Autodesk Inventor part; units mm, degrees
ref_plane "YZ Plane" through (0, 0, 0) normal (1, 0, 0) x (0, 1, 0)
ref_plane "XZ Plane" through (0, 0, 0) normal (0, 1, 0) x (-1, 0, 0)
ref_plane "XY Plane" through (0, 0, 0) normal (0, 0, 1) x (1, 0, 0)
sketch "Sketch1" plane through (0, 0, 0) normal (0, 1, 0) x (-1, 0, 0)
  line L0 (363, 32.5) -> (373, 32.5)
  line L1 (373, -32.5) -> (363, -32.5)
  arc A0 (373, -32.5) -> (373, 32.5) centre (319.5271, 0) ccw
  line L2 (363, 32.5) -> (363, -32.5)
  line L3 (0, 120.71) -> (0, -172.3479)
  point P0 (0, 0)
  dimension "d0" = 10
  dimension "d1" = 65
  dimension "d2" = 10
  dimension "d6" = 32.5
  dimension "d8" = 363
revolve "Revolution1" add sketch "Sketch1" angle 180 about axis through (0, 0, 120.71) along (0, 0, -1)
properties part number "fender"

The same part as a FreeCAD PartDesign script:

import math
import FreeCAD as App
import Part
import Sketcher

doc = App.newDocument("Part")
body = doc.addObject("PartDesign::Body", "Body")

sketch1 = doc.addObject("Sketcher::SketchObject", "Sketch")
body.addObject(sketch1)
sketch1.AttachmentSupport = (doc.XZ_Plane, [""])
sketch1.MapMode = "FlatFace"
sketch1.addGeometry(Part.LineSegment(App.Vector(-373, 32.5, 0), App.Vector(-363, 32.5, 0)), False)
sketch1.addGeometry(Part.LineSegment(App.Vector(-363, 32.5, 0), App.Vector(-363, -32.5, 0)), False)
sketch1.addGeometry(Part.LineSegment(App.Vector(-363, -32.5, 0), App.Vector(-373, -32.5, 0)), False)
sketch1.addGeometry(Part.ArcOfCircle(Part.Circle(App.Vector(-319.5271, 0, 0), App.Vector(0, 0, 1), 62.574764), math.radians(148.709414), math.radians(211.290586)), False)
sketch1.addConstraint(Sketcher.Constraint("Coincident", 0, 2, 1, 1))
sketch1.addConstraint(Sketcher.Constraint("Coincident", 1, 2, 2, 1))
sketch1.addConstraint(Sketcher.Constraint("Coincident", 2, 2, 3, 2))
sketch1.addConstraint(Sketcher.Constraint("Coincident", 3, 1, 0, 1))
sketch1.addConstraint(Sketcher.Constraint("Horizontal", 0))
sketch1.addConstraint(Sketcher.Constraint("Vertical", 1))
sketch1.addConstraint(Sketcher.Constraint("Horizontal", 2))
sketch1.addConstraint(Sketcher.Constraint("Symmetric", 2, 2, 3, 1, -1))
sketch1.addConstraint(Sketcher.Constraint("DistanceX", 0, 1, 0, 2, 10.0))
sketch1.addConstraint(Sketcher.Constraint("DistanceY", 1, 2, 1, 1, 65.0))
sketch1.addConstraint(Sketcher.Constraint("DistanceX", 0, 2, -1, 1, 363.0))
sketch1.addConstraint(Sketcher.Constraint("Radius", 3, 62.5748))
revolution = doc.addObject("PartDesign::Revolution", "Revolution")
body.addObject(revolution)
revolution.Profile = sketch1
revolution.ReferenceAxis = (sketch1, ["V_Axis"])
revolution.Angle = 180
revolution.Reversed = True

doc.recompute()
